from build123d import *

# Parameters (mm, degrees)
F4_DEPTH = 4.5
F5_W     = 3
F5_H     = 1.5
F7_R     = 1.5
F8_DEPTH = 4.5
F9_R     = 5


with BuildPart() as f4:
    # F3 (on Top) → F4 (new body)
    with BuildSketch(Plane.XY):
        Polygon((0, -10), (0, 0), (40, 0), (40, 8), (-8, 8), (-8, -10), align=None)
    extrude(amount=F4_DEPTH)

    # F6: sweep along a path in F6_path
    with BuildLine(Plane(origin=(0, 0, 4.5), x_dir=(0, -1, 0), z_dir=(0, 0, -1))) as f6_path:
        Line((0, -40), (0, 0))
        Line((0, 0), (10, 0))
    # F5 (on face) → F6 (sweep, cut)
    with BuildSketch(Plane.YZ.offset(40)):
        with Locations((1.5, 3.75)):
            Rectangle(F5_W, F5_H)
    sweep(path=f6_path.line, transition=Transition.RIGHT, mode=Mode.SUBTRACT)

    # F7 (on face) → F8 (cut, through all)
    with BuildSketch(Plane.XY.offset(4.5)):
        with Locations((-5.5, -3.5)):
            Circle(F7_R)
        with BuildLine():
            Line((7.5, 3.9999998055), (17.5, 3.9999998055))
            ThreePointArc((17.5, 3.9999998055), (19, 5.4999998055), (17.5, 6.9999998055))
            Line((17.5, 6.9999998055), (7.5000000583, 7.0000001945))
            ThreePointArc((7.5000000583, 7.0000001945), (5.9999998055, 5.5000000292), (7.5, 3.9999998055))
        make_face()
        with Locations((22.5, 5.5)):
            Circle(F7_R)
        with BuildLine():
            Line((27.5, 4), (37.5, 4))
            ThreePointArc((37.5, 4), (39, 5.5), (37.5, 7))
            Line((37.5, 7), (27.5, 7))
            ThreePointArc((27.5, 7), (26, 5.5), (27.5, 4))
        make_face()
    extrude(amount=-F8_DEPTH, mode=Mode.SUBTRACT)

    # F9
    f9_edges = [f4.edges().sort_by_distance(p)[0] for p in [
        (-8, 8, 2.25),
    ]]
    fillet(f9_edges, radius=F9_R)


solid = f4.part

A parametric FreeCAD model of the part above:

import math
import FreeCAD as App
import Part
import Sketcher
from FreeCAD import Vector


def edges_at(feature, points):
    """Names of the edges that pass closest to the given points."""
    edges = feature.Shape.Edges
    near = lambda p: min(range(len(edges)), key=lambda i: edges[i].distToShape(Part.Vertex(*p))[0])
    return sorted({f"Edge{near(p) + 1}" for p in points})

doc = App.newDocument("Part")
body = doc.addObject("PartDesign::Body", "Body")

# Sketch on XY plane
sketch1 = body.newObject("Sketcher::SketchObject", "Sketch")
sketch1.AttachmentSupport = (doc.getObject("XY_Plane"), [""])
sketch1.MapMode = "FlatFace"
sketch1.addGeometry([
    Part.LineSegment(Vector(0, -10, 0), Vector(0, 0, 0)),  # 0
    Part.LineSegment(Vector(0, 0, 0), Vector(40, 0, 0)),  # 1
    Part.LineSegment(Vector(40, 0, 0), Vector(40, 8, 0)),  # 2
    Part.LineSegment(Vector(40, 8, 0), Vector(-8, 8, 0)),  # 3
    Part.LineSegment(Vector(-8, 8, 0), Vector(-8, -10, 0)),  # 4
    Part.LineSegment(Vector(-8, -10, 0), Vector(0, -10, 0)),  # 5
], False)
sketch1.addConstraint([
    Sketcher.Constraint("Coincident", 0, 2, 1, 1),
    Sketcher.Constraint("Coincident", 1, 2, 2, 1),
    Sketcher.Constraint("Coincident", 2, 2, 3, 1),
    Sketcher.Constraint("Coincident", 3, 2, 4, 1),
    Sketcher.Constraint("Coincident", 4, 2, 5, 1),
    Sketcher.Constraint("Coincident", 5, 2, 0, 1),
    Sketcher.Constraint("Vertical", 0),
    Sketcher.Constraint("Horizontal", 1),
    Sketcher.Constraint("Vertical", 2),
    Sketcher.Constraint("Horizontal", 3),
    Sketcher.Constraint("Vertical", 4),
    Sketcher.Constraint("Horizontal", 5),
    Sketcher.Constraint("Coincident", 0, 2, -1, 1),
    Sketcher.Constraint("Equal", 5, 2),
    Sketcher.Constraint("DistanceX", 1, 1, 1, 2, 40.0),
    Sketcher.Constraint("DistanceX", 3, 2, 3, 1, 48.0),
    Sketcher.Constraint("DistanceY", 0, 1, 0, 2, 10.0),
])
pad1 = body.newObject("PartDesign::Pad", "Pad")
pad1.Profile = sketch1
pad1.Length = 4.5

# Sketch on YZ plane
sketch2 = body.newObject("Sketcher::SketchObject", "Sketch001")
sketch2.AttachmentSupport = (doc.getObject("YZ_Plane"), [""])
sketch2.MapMode = "FlatFace"
sketch2.AttachmentOffset = App.Placement(Vector(0, 0, 40), App.Rotation())
sketch2.addGeometry([
    Part.LineSegment(Vector(0, 4.5, 0), Vector(0, 3, 0)),
    Part.LineSegment(Vector(0, 3, 0), Vector(3, 3, 0)),
    Part.LineSegment(Vector(3, 3, 0), Vector(3, 4.5, 0)),
    Part.LineSegment(Vector(3, 4.5, 0), Vector(0, 4.5, 0)),
], False)
sketch2.addConstraint([
    Sketcher.Constraint("Coincident", 0, 2, 1, 1),
    Sketcher.Constraint("Coincident", 1, 2, 2, 1),
    Sketcher.Constraint("Coincident", 2, 2, 3, 1),
    Sketcher.Constraint("Coincident", 3, 2, 0, 1),
    Sketcher.Constraint("Vertical", 0),
    Sketcher.Constraint("Horizontal", 1),
    Sketcher.Constraint("Vertical", 2),
    Sketcher.Constraint("Horizontal", 3),
    Sketcher.Constraint("PointOnObject", 0, 2, -2),
    Sketcher.Constraint("DistanceX", 1, 1, 1, 2, 3.0),
    Sketcher.Constraint("DistanceY", 0, 2, 0, 1, 1.5),
    Sketcher.Constraint("DistanceY", -1, 1, 0, 2, 3.0),
])

# Sketch on XY plane
sketch3 = body.newObject("Sketcher::SketchObject", "Sketch002")
sketch3.AttachmentSupport = (doc.getObject("XY_Plane"), [""])
sketch3.MapMode = "FlatFace"
sketch3.AttachmentOffset = App.Placement(Vector(0, 0, 4.5), App.Rotation())
sketch3.addGeometry([
    Part.LineSegment(Vector(40, 0, 0), Vector(0, 0, 0)),
    Part.LineSegment(Vector(0, 0, 0), Vector(0, -10, 0)),
], False)
sketch3.addConstraint([
    Sketcher.Constraint("Coincident", 0, 2, 1, 1),
    Sketcher.Constraint("Horizontal", 0),
    Sketcher.Constraint("Vertical", 1),
    Sketcher.Constraint("Coincident", 0, 2, -1, 1),
    Sketcher.Constraint("DistanceX", 0, 2, 0, 1, 40.0),
    Sketcher.Constraint("DistanceY", 1, 2, 1, 1, 10.0),
])
doc.recompute()

subtractivepipe = body.newObject("PartDesign::SubtractivePipe", "SubtractivePipe")
subtractivepipe.Profile = sketch2
subtractivepipe.Spine = (sketch3, ["Edge1", "Edge2"])
subtractivepipe.Transition = "Right corner"

# Sketch on XY plane
sketch4 = body.newObject("Sketcher::SketchObject", "Sketch003")
sketch4.AttachmentSupport = (doc.getObject("XY_Plane"), [""])
sketch4.MapMode = "FlatFace"
sketch4.AttachmentOffset = App.Placement(Vector(0, 0, 4.5), App.Rotation())
sketch4.addGeometry([
    Part.Circle(Vector(-5.5, -3.5, 0), Vector(0, 0, 1), 1.5),  # 0
    Part.LineSegment(Vector(7.5, 4, 0), Vector(17.5, 4, 0)),  # 1
    Part.ArcOfCircle(Part.Circle(Vector(17.5, 5.5, 0), Vector(0, 0, 1), 1.5), math.radians(-90), math.radians(90)),  # 2
    Part.LineSegment(Vector(17.5, 7, 0), Vector(7.5, 7, 0)),  # 3
    Part.ArcOfCircle(Part.Circle(Vector(7.5, 5.5, 0), Vector(0, 0, 1), 1.5), math.radians(90), math.radians(270)),  # 4
    Part.Circle(Vector(22.5, 5.5, 0), Vector(0, 0, 1), 1.5),  # 5
    Part.LineSegment(Vector(27.5, 4, 0), Vector(37.5, 4, 0)),  # 6
    Part.ArcOfCircle(Part.Circle(Vector(37.5, 5.5, 0), Vector(0, 0, 1), 1.5), math.radians(-90), math.radians(90)),  # 7
    Part.LineSegment(Vector(37.5, 7, 0), Vector(27.5, 7, 0)),  # 8
    Part.ArcOfCircle(Part.Circle(Vector(27.5, 5.5, 0), Vector(0, 0, 1), 1.5), math.radians(90), math.radians(270)),  # 9
], False)
sketch4.addConstraint([
    Sketcher.Constraint("Tangent", 1, 2, 2, 1),
    Sketcher.Constraint("Tangent", 2, 2, 3, 1),
    Sketcher.Constraint("Tangent", 3, 2, 4, 1),
    Sketcher.Constraint("Tangent", 4, 2, 1, 1),
    Sketcher.Constraint("Tangent", 6, 2, 7, 1),
    Sketcher.Constraint("Tangent", 7, 2, 8, 1),
    Sketcher.Constraint("Tangent", 8, 2, 9, 1),
    Sketcher.Constraint("Tangent", 9, 2, 6, 1),
    Sketcher.Constraint("Horizontal", 1),
    Sketcher.Constraint("Horizontal", 3),
    Sketcher.Constraint("Horizontal", 6),
    Sketcher.Constraint("Horizontal", 8),
    Sketcher.Constraint("Equal", 0, 2),
    Sketcher.Constraint("Equal", 4, 5),
    Sketcher.Constraint("Equal", 5, 7),
    Sketcher.Constraint("Horizontal", 4, 3, 5, 3),
    Sketcher.Constraint("Horizontal", 5, 3, 7, 3),
    Sketcher.Constraint("Equal", 3, 6),
    Sketcher.Constraint("Diameter", 0, 3.0),
    Sketcher.Constraint("DistanceX", 1, 1, 1, 2, 10.0),
    Sketcher.Constraint("DistanceY", -1, 1, 1, 2, 4.0),
    Sketcher.Constraint("DistanceX", 0, 3, 2, 3, 23.0),
    Sketcher.Constraint("DistanceY", 0, 3, 2, 3, 9.0),
    Sketcher.Constraint("DistanceX", 2, 3, 5, 3, 5.0),
    Sketcher.Constraint("DistanceX", 5, 3, 7, 3, 15.0),
    Sketcher.Constraint("DistanceX", 0, 3, -1, 1, 5.5),
])
pocket1 = body.newObject("PartDesign::Pocket", "Pocket")
pocket1.Profile = sketch4
pocket1.Type = "ThroughAll"
doc.recompute()

fillet = body.newObject("PartDesign::Fillet", "Fillet")
fillet.Base = (pocket1, edges_at(pocket1, [(-8, 8, 2.25)]))
fillet.Radius = 5

doc.recompute()
